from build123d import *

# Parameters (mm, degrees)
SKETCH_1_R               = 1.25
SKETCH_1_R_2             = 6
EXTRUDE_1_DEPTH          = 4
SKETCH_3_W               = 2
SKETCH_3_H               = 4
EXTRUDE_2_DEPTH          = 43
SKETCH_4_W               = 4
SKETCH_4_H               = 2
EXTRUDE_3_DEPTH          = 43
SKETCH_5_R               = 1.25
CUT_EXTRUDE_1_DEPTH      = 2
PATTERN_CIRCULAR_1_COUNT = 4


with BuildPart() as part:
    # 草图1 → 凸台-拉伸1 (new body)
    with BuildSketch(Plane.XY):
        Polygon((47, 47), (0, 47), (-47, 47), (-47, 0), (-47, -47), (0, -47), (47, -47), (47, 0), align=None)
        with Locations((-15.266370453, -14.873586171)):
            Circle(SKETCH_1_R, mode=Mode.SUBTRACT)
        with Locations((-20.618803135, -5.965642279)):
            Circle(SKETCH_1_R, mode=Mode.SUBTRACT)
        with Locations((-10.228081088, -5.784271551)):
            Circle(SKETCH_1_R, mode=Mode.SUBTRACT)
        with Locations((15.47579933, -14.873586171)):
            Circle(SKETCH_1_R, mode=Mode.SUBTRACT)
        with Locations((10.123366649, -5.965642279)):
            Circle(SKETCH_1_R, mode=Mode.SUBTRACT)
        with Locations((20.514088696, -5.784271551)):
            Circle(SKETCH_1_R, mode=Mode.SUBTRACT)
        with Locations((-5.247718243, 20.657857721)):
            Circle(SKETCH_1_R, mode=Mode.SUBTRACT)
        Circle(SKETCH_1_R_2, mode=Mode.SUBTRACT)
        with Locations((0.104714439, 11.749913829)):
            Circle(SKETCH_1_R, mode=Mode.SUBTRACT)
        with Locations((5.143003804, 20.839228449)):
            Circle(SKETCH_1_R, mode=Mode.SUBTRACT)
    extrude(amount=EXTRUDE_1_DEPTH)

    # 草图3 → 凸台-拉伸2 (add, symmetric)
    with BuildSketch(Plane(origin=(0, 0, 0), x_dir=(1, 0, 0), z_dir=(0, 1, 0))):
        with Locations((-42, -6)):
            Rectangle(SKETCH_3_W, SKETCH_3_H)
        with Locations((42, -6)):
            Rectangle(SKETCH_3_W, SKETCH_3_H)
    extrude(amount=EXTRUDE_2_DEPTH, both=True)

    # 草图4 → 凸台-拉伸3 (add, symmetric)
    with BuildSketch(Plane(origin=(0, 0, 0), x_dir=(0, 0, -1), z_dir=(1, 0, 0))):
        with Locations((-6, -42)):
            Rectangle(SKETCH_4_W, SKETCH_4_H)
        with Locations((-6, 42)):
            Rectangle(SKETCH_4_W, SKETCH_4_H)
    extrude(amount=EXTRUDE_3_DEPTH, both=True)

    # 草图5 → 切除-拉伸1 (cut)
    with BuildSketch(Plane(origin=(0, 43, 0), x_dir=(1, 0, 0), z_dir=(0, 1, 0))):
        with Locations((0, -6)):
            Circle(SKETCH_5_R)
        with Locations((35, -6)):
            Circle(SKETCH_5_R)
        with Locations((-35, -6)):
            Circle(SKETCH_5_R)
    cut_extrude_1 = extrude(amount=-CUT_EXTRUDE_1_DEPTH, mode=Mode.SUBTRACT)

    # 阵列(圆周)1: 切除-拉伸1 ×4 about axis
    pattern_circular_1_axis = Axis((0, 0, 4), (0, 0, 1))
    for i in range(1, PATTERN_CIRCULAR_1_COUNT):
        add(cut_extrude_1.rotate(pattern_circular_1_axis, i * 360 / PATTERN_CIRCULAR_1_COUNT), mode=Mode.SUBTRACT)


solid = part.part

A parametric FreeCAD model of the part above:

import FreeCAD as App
import Part
import Sketcher
from FreeCAD import Vector
Q = App.Units.Quantity

doc = App.newDocument("Part")
params = doc.addObject("Spreadsheet::Sheet", "Params")
for row, (alias, value) in enumerate([
    ("sketch1_diameter", "12 mm"),
    ("sketch1_diameter2", "2.5 mm"),
    ("sketch1_width", "94 mm"),
    ("pad1_length", "4 mm"),
    ("sketch2_width", "2 mm"),
    ("sketch2_height", "4 mm"),
    ("pad2_length", "86 mm"),
    ("sketch3_width", "2 mm"),
    ("sketch3_height", "4 mm"),
    ("pad3_length", "86 mm"),
    ("sketch4_diameter", "2.5 mm"),
    ("pocket1_length", "2 mm"),
], start=1):
    params.set(f"A{row}", alias)
    params.set(f"B{row}", "=" + value)
    params.setAlias(f"B{row}", alias)

body = doc.addObject("PartDesign::Body", "Body")

sketch1 = doc.addObject("Sketcher::SketchObject", "Sketch")
body.addObject(sketch1)
sketch1.AttachmentSupport = (doc.XY_Plane, [""])
sketch1.MapMode = "FlatFace"
sketch1.addGeometry(Part.LineSegment(Vector(47, 47, 0), Vector(-47, 47, 0)), False)
sketch1.addGeometry(Part.LineSegment(Vector(-47, 47, 0), Vector(-47, -47, 0)), False)
sketch1.addGeometry(Part.LineSegment(Vector(-47, -47, 0), Vector(47, -47, 0)), False)
sketch1.addGeometry(Part.LineSegment(Vector(47, -47, 0), Vector(47, 47, 0)), False)
sketch1.addGeometry(Part.Circle(Vector(-15.3, -14.9, 0), Vector(0, 0, 1), 1.2), False)
sketch1.addGeometry(Part.Circle(Vector(-20.6, -6, 0), Vector(0, 0, 1), 1.2), False)
sketch1.addGeometry(Part.Circle(Vector(-10.2, -5.8, 0), Vector(0, 0, 1), 1.2), False)
sketch1.addGeometry(Part.Circle(Vector(15.5, -14.9, 0), Vector(0, 0, 1), 1.2), False)
sketch1.addGeometry(Part.Circle(Vector(10.1, -6, 0), Vector(0, 0, 1), 1.2), False)
sketch1.addGeometry(Part.Circle(Vector(0, 0, 0), Vector(0, 0, 1), 6), False)
sketch1.addGeometry(Part.Circle(Vector(20.5, -5.8, 0), Vector(0, 0, 1), 1.2), False)
sketch1.addGeometry(Part.Circle(Vector(-5.2, 20.7, 0), Vector(0, 0, 1), 1.2), False)
sketch1.addGeometry(Part.Circle(Vector(0.1, 11.7, 0), Vector(0, 0, 1), 1.2), False)
sketch1.addGeometry(Part.Circle(Vector(5.1, 20.8, 0), Vector(0, 0, 1), 1.2), False)
sketch1.addConstraint(Sketcher.Constraint("Coincident", 0, 2, 1, 1))
sketch1.addConstraint(Sketcher.Constraint("Coincident", 1, 2, 2, 1))
sketch1.addConstraint(Sketcher.Constraint("Coincident", 2, 2, 3, 1))
sketch1.addConstraint(Sketcher.Constraint("Coincident", 3, 2, 0, 1))
sketch1.addConstraint(Sketcher.Constraint("Horizontal", 0))
sketch1.addConstraint(Sketcher.Constraint("Vertical", 1))
sketch1.addConstraint(Sketcher.Constraint("Horizontal", 2))
sketch1.addConstraint(Sketcher.Constraint("Vertical", 3))
sketch1.addConstraint(Sketcher.Constraint("Coincident", 9, 3, -1, 1))
sketch1.addConstraint(Sketcher.Constraint("Equal", 4, 5))
sketch1.addConstraint(Sketcher.Constraint("Equal", 5, 6))
sketch1.addConstraint(Sketcher.Constraint("Equal", 6, 7))
sketch1.addConstraint(Sketcher.Constraint("Equal", 7, 8))
sketch1.addConstraint(Sketcher.Constraint("Equal", 8, 10))
sketch1.addConstraint(Sketcher.Constraint("Equal", 10, 11))
sketch1.addConstraint(Sketcher.Constraint("Equal", 11, 12))
sketch1.addConstraint(Sketcher.Constraint("Equal", 12, 13))
sketch1.addConstraint(Sketcher.Constraint("Symmetric", 0, 2, 2, 2, -1, 1))
sketch1.addConstraint(Sketcher.Constraint("Horizontal", 4, 3, 7, 3))
sketch1.addConstraint(Sketcher.Constraint("Horizontal", 5, 3, 8, 3))
sketch1.addConstraint(Sketcher.Constraint("Horizontal", 6, 3, 10, 3))
sketch1.addConstraint(Sketcher.Constraint("Equal", 2, 1))
sketch1.addConstraint(Sketcher.Constraint("Diameter", 9, Q("12 mm")))
sketch1.addConstraint(Sketcher.Constraint("Diameter", 4, Q("2.5 mm")))
sketch1.addConstraint(Sketcher.Constraint("DistanceX", 0, 2, 0, 1, Q("94 mm")))
sketch1.addConstraint(Sketcher.Constraint("DistanceX", -1, 1, 7, 3, Q("15.475799 mm")))
sketch1.addConstraint(Sketcher.Constraint("DistanceY", 5, 3, 11, 3, Q("26.6235 mm")))
sketch1.addConstraint(Sketcher.Constraint("DistanceY", 6, 3, 13, 3, Q("26.6235 mm")))
sketch1.addConstraint(Sketcher.Constraint("DistanceX", 4, 3, -1, 1, Q("15.26637 mm")))
sketch1.addConstraint(Sketcher.Constraint("DistanceX", 6, 3, -1, 1, Q("10.228081 mm")))
sketch1.addConstraint(Sketcher.Constraint("DistanceY", 6, 3, -1, 1, Q("5.784272 mm")))
sketch1.addConstraint(Sketcher.Constraint("DistanceX", -1, 1, 10, 3, Q("20.514089 mm")))
sketch1.addConstraint(Sketcher.Constraint("DistanceX", 11, 3, -1, 1, Q("5.247718 mm")))
sketch1.addConstraint(Sketcher.Constraint("DistanceY", 5, 3, 6, 3, Q("0.181371 mm")))
sketch1.addConstraint(Sketcher.Constraint("DistanceX", 5, 3, 8, 3, Q("30.74217 mm")))
sketch1.addConstraint(Sketcher.Constraint("DistanceX", 12, 3, 13, 3, Q("5.038289 mm")))
sketch1.addConstraint(Sketcher.Constraint("DistanceY", 4, 3, -1, 1, Q("14.873586 mm")))
sketch1.addConstraint(Sketcher.Constraint("DistanceX", 5, 3, -1, 1, Q("20.618803 mm")))
sketch1.addConstraint(Sketcher.Constraint("DistanceX", -1, 1, 12, 3, Q("0.104714 mm")))
sketch1.addConstraint(Sketcher.Constraint("DistanceY", -1, 1, 12, 3, Q("11.749914 mm")))
sketch1.setExpression("Constraints[22]", "Params.sketch1_diameter")
sketch1.setExpression("Constraints[23]", "Params.sketch1_diameter2")
sketch1.setExpression("Constraints[24]", "Params.sketch1_width")
pad1 = doc.addObject("PartDesign::Pad", "Pad")
body.addObject(pad1)
pad1.Profile = sketch1
pad1.setExpression("Length", "Params.pad1_length")

sketch2 = doc.addObject("Sketcher::SketchObject", "Sketch001")
body.addObject(sketch2)
sketch2.AttachmentSupport = (doc.XZ_Plane, [""])
sketch2.MapMode = "FlatFace"
sketch2.addGeometry(Part.LineSegment(Vector(-43, 4, 0), Vector(-43, 8, 0)), False)
sketch2.addGeometry(Part.LineSegment(Vector(-43, 8, 0), Vector(-41, 8, 0)), False)
sketch2.addGeometry(Part.LineSegment(Vector(-41, 8, 0), Vector(-41, 4, 0)), False)
sketch2.addGeometry(Part.LineSegment(Vector(-41, 4, 0), Vector(-43, 4, 0)), False)
sketch2.addGeometry(Part.LineSegment(Vector(41, 4, 0), Vector(41, 8, 0)), False)
sketch2.addGeometry(Part.LineSegment(Vector(41, 8, 0), Vector(43, 8, 0)), False)
sketch2.addGeometry(Part.LineSegment(Vector(43, 8, 0), Vector(43, 4, 0)), False)
sketch2.addGeometry(Part.LineSegment(Vector(43, 4, 0), Vector(41, 4, 0)), False)
sketch2.addConstraint(Sketcher.Constraint("Coincident", 0, 2, 1, 1))
sketch2.addConstraint(Sketcher.Constraint("Coincident", 1, 2, 2, 1))
sketch2.addConstraint(Sketcher.Constraint("Coincident", 2, 2, 3, 1))
sketch2.addConstraint(Sketcher.Constraint("Coincident", 3, 2, 0, 1))
sketch2.addConstraint(Sketcher.Constraint("Coincident", 4, 2, 5, 1))
sketch2.addConstraint(Sketcher.Constraint("Coincident", 5, 2, 6, 1))
sketch2.addConstraint(Sketcher.Constraint("Coincident", 6, 2, 7, 1))
sketch2.addConstraint(Sketcher.Constraint("Coincident", 7, 2, 4, 1))
sketch2.addConstraint(Sketcher.Constraint("Vertical", 0))
sketch2.addConstraint(Sketcher.Constraint("Horizontal", 1))
sketch2.addConstraint(Sketcher.Constraint("Vertical", 2))
sketch2.addConstraint(Sketcher.Constraint("Horizontal", 3))
sketch2.addConstraint(Sketcher.Constraint("Vertical", 4))
sketch2.addConstraint(Sketcher.Constraint("Horizontal", 5))
sketch2.addConstraint(Sketcher.Constraint("Vertical", 6))
sketch2.addConstraint(Sketcher.Constraint("Horizontal", 7))
sketch2.addConstraint(Sketcher.Constraint("Symmetric", 1, 2, 4, 2, -2))
sketch2.addConstraint(Sketcher.Constraint("Symmetric", 3, 2, 6, 2, -2))
sketch2.addConstraint(Sketcher.Constraint("DistanceX", 1, 1, 1, 2, Q("2 mm")))
sketch2.addConstraint(Sketcher.Constraint("DistanceY", 0, 1, 0, 2, Q("4 mm")))
sketch2.addConstraint(Sketcher.Constraint("DistanceX", 0, 2, -1, 1, Q("43 mm")))
sketch2.addConstraint(Sketcher.Constraint("DistanceY", -1, 1, 0, 2, Q("8 mm")))
sketch2.setExpression("Constraints[18]", "Params.sketch2_width")
sketch2.setExpression("Constraints[19]", "Params.sketch2_height")
pad2 = doc.addObject("PartDesign::Pad", "Pad001")
body.addObject(pad2)
pad2.Profile = sketch2
pad2.setExpression("Length", "Params.pad2_length")
pad2.Midplane = True

sketch3 = doc.addObject("Sketcher::SketchObject", "Sketch002")
body.addObject(sketch3)
sketch3.AttachmentSupport = (doc.YZ_Plane, [""])
sketch3.MapMode = "FlatFace"
sketch3.addGeometry(Part.LineSegment(Vector(-41, 8, 0), Vector(-43, 8, 0)), False)
sketch3.addGeometry(Part.LineSegment(Vector(-43, 8, 0), Vector(-43, 4, 0)), False)
sketch3.addGeometry(Part.LineSegment(Vector(-43, 4, 0), Vector(-41, 4, 0)), False)
sketch3.addGeometry(Part.LineSegment(Vector(-41, 4, 0), Vector(-41, 8, 0)), False)
sketch3.addGeometry(Part.LineSegment(Vector(43, 8, 0), Vector(41, 8, 0)), False)
sketch3.addGeometry(Part.LineSegment(Vector(41, 8, 0), Vector(41, 4, 0)), False)
sketch3.addGeometry(Part.LineSegment(Vector(41, 4, 0), Vector(43, 4, 0)), False)
sketch3.addGeometry(Part.LineSegment(Vector(43, 4, 0), Vector(43, 8, 0)), False)
sketch3.addConstraint(Sketcher.Constraint("Coincident", 0, 2, 1, 1))
sketch3.addConstraint(Sketcher.Constraint("Coincident", 1, 2, 2, 1))
sketch3.addConstraint(Sketcher.Constraint("Coincident", 2, 2, 3, 1))
sketch3.addConstraint(Sketcher.Constraint("Coincident", 3, 2, 0, 1))
sketch3.addConstraint(Sketcher.Constraint("Coincident", 4, 2, 5, 1))
sketch3.addConstraint(Sketcher.Constraint("Coincident", 5, 2, 6, 1))
sketch3.addConstraint(Sketcher.Constraint("Coincident", 6, 2, 7, 1))
sketch3.addConstraint(Sketcher.Constraint("Coincident", 7, 2, 4, 1))
sketch3.addConstraint(Sketcher.Constraint("Horizontal", 0))
sketch3.addConstraint(Sketcher.Constraint("Vertical", 1))
sketch3.addConstraint(Sketcher.Constraint("Horizontal", 2))
sketch3.addConstraint(Sketcher.Constraint("Vertical", 3))
sketch3.addConstraint(Sketcher.Constraint("Horizontal", 4))
sketch3.addConstraint(Sketcher.Constraint("Vertical", 5))
sketch3.addConstraint(Sketcher.Constraint("Horizontal", 6))
sketch3.addConstraint(Sketcher.Constraint("Vertical", 7))
sketch3.addConstraint(Sketcher.Constraint("Symmetric", 3, 2, 4, 2, -2))
sketch3.addConstraint(Sketcher.Constraint("Symmetric", 1, 2, 6, 2, -2))
sketch3.addConstraint(Sketcher.Constraint("DistanceX", 0, 2, 0, 1, Q("2 mm")))
sketch3.addConstraint(Sketcher.Constraint("DistanceY", 1, 2, 1, 1, Q("4 mm")))
sketch3.addConstraint(Sketcher.Constraint("DistanceX", 0, 2, -1, 1, Q("43 mm")))
sketch3.addConstraint(Sketcher.Constraint("DistanceY", -1, 1, 0, 2, Q("8 mm")))
sketch3.setExpression("Constraints[18]", "Params.sketch3_width")
sketch3.setExpression("Constraints[19]", "Params.sketch3_height")
pad3 = doc.addObject("PartDesign::Pad", "Pad002")
body.addObject(pad3)
pad3.Profile = sketch3
pad3.setExpression("Length", "Params.pad3_length")
pad3.Midplane = True

sketch4 = doc.addObject("Sketcher::SketchObject", "Sketch003")
body.addObject(sketch4)
sketch4.AttachmentSupport = (doc.XZ_Plane, [""])
sketch4.MapMode = "FlatFace"
sketch4.AttachmentOffset = App.Placement(Vector(0, 0, -43), App.Rotation())
sketch4.addGeometry(Part.Circle(Vector(0, 6, 0), Vector(0, 0, 1), 1.2), False)
sketch4.addGeometry(Part.Circle(Vector(35, 6, 0), Vector(0, 0, 1), 1.2), False)
sketch4.addGeometry(Part.Circle(Vector(-35, 6, 0), Vector(0, 0, 1), 1.2), False)
sketch4.addConstraint(Sketcher.Constraint("Equal", 0, 1))
sketch4.addConstraint(Sketcher.Constraint("Equal", 1, 2))
sketch4.addConstraint(Sketcher.Constraint("Symmetric", 1, 3, 2, 3, -2))
sketch4.addConstraint(Sketcher.Constraint("PointOnObject", 0, 3, -2))
sketch4.addConstraint(Sketcher.Constraint("Horizontal", 0, 3, 1, 3))
sketch4.addConstraint(Sketcher.Constraint("Diameter", 0, Q("2.5 mm")))
sketch4.addConstraint(Sketcher.Constraint("DistanceY", -1, 1, 0, 3, Q("6 mm")))
sketch4.addConstraint(Sketcher.Constraint("DistanceX", -1, 1, 1, 3, Q("35 mm")))
sketch4.setExpression("Constraints[5]", "Params.sketch4_diameter")
pocket1 = doc.addObject("PartDesign::Pocket", "Pocket")
body.addObject(pocket1)
pocket1.Profile = sketch4
pocket1.setExpression("Length", "Params.pocket1_length")
pocket1.Reversed = True
doc.recompute()

polarpattern = doc.addObject("PartDesign::PolarPattern", "PolarPattern")
body.addObject(polarpattern)
polarpattern.Originals = [pocket1]
polarpattern.Axis = (doc.Z_Axis, [""])
polarpattern.Angle = 360
polarpattern.Occurrences = 4
body.Tip = polarpattern

doc.recompute()
